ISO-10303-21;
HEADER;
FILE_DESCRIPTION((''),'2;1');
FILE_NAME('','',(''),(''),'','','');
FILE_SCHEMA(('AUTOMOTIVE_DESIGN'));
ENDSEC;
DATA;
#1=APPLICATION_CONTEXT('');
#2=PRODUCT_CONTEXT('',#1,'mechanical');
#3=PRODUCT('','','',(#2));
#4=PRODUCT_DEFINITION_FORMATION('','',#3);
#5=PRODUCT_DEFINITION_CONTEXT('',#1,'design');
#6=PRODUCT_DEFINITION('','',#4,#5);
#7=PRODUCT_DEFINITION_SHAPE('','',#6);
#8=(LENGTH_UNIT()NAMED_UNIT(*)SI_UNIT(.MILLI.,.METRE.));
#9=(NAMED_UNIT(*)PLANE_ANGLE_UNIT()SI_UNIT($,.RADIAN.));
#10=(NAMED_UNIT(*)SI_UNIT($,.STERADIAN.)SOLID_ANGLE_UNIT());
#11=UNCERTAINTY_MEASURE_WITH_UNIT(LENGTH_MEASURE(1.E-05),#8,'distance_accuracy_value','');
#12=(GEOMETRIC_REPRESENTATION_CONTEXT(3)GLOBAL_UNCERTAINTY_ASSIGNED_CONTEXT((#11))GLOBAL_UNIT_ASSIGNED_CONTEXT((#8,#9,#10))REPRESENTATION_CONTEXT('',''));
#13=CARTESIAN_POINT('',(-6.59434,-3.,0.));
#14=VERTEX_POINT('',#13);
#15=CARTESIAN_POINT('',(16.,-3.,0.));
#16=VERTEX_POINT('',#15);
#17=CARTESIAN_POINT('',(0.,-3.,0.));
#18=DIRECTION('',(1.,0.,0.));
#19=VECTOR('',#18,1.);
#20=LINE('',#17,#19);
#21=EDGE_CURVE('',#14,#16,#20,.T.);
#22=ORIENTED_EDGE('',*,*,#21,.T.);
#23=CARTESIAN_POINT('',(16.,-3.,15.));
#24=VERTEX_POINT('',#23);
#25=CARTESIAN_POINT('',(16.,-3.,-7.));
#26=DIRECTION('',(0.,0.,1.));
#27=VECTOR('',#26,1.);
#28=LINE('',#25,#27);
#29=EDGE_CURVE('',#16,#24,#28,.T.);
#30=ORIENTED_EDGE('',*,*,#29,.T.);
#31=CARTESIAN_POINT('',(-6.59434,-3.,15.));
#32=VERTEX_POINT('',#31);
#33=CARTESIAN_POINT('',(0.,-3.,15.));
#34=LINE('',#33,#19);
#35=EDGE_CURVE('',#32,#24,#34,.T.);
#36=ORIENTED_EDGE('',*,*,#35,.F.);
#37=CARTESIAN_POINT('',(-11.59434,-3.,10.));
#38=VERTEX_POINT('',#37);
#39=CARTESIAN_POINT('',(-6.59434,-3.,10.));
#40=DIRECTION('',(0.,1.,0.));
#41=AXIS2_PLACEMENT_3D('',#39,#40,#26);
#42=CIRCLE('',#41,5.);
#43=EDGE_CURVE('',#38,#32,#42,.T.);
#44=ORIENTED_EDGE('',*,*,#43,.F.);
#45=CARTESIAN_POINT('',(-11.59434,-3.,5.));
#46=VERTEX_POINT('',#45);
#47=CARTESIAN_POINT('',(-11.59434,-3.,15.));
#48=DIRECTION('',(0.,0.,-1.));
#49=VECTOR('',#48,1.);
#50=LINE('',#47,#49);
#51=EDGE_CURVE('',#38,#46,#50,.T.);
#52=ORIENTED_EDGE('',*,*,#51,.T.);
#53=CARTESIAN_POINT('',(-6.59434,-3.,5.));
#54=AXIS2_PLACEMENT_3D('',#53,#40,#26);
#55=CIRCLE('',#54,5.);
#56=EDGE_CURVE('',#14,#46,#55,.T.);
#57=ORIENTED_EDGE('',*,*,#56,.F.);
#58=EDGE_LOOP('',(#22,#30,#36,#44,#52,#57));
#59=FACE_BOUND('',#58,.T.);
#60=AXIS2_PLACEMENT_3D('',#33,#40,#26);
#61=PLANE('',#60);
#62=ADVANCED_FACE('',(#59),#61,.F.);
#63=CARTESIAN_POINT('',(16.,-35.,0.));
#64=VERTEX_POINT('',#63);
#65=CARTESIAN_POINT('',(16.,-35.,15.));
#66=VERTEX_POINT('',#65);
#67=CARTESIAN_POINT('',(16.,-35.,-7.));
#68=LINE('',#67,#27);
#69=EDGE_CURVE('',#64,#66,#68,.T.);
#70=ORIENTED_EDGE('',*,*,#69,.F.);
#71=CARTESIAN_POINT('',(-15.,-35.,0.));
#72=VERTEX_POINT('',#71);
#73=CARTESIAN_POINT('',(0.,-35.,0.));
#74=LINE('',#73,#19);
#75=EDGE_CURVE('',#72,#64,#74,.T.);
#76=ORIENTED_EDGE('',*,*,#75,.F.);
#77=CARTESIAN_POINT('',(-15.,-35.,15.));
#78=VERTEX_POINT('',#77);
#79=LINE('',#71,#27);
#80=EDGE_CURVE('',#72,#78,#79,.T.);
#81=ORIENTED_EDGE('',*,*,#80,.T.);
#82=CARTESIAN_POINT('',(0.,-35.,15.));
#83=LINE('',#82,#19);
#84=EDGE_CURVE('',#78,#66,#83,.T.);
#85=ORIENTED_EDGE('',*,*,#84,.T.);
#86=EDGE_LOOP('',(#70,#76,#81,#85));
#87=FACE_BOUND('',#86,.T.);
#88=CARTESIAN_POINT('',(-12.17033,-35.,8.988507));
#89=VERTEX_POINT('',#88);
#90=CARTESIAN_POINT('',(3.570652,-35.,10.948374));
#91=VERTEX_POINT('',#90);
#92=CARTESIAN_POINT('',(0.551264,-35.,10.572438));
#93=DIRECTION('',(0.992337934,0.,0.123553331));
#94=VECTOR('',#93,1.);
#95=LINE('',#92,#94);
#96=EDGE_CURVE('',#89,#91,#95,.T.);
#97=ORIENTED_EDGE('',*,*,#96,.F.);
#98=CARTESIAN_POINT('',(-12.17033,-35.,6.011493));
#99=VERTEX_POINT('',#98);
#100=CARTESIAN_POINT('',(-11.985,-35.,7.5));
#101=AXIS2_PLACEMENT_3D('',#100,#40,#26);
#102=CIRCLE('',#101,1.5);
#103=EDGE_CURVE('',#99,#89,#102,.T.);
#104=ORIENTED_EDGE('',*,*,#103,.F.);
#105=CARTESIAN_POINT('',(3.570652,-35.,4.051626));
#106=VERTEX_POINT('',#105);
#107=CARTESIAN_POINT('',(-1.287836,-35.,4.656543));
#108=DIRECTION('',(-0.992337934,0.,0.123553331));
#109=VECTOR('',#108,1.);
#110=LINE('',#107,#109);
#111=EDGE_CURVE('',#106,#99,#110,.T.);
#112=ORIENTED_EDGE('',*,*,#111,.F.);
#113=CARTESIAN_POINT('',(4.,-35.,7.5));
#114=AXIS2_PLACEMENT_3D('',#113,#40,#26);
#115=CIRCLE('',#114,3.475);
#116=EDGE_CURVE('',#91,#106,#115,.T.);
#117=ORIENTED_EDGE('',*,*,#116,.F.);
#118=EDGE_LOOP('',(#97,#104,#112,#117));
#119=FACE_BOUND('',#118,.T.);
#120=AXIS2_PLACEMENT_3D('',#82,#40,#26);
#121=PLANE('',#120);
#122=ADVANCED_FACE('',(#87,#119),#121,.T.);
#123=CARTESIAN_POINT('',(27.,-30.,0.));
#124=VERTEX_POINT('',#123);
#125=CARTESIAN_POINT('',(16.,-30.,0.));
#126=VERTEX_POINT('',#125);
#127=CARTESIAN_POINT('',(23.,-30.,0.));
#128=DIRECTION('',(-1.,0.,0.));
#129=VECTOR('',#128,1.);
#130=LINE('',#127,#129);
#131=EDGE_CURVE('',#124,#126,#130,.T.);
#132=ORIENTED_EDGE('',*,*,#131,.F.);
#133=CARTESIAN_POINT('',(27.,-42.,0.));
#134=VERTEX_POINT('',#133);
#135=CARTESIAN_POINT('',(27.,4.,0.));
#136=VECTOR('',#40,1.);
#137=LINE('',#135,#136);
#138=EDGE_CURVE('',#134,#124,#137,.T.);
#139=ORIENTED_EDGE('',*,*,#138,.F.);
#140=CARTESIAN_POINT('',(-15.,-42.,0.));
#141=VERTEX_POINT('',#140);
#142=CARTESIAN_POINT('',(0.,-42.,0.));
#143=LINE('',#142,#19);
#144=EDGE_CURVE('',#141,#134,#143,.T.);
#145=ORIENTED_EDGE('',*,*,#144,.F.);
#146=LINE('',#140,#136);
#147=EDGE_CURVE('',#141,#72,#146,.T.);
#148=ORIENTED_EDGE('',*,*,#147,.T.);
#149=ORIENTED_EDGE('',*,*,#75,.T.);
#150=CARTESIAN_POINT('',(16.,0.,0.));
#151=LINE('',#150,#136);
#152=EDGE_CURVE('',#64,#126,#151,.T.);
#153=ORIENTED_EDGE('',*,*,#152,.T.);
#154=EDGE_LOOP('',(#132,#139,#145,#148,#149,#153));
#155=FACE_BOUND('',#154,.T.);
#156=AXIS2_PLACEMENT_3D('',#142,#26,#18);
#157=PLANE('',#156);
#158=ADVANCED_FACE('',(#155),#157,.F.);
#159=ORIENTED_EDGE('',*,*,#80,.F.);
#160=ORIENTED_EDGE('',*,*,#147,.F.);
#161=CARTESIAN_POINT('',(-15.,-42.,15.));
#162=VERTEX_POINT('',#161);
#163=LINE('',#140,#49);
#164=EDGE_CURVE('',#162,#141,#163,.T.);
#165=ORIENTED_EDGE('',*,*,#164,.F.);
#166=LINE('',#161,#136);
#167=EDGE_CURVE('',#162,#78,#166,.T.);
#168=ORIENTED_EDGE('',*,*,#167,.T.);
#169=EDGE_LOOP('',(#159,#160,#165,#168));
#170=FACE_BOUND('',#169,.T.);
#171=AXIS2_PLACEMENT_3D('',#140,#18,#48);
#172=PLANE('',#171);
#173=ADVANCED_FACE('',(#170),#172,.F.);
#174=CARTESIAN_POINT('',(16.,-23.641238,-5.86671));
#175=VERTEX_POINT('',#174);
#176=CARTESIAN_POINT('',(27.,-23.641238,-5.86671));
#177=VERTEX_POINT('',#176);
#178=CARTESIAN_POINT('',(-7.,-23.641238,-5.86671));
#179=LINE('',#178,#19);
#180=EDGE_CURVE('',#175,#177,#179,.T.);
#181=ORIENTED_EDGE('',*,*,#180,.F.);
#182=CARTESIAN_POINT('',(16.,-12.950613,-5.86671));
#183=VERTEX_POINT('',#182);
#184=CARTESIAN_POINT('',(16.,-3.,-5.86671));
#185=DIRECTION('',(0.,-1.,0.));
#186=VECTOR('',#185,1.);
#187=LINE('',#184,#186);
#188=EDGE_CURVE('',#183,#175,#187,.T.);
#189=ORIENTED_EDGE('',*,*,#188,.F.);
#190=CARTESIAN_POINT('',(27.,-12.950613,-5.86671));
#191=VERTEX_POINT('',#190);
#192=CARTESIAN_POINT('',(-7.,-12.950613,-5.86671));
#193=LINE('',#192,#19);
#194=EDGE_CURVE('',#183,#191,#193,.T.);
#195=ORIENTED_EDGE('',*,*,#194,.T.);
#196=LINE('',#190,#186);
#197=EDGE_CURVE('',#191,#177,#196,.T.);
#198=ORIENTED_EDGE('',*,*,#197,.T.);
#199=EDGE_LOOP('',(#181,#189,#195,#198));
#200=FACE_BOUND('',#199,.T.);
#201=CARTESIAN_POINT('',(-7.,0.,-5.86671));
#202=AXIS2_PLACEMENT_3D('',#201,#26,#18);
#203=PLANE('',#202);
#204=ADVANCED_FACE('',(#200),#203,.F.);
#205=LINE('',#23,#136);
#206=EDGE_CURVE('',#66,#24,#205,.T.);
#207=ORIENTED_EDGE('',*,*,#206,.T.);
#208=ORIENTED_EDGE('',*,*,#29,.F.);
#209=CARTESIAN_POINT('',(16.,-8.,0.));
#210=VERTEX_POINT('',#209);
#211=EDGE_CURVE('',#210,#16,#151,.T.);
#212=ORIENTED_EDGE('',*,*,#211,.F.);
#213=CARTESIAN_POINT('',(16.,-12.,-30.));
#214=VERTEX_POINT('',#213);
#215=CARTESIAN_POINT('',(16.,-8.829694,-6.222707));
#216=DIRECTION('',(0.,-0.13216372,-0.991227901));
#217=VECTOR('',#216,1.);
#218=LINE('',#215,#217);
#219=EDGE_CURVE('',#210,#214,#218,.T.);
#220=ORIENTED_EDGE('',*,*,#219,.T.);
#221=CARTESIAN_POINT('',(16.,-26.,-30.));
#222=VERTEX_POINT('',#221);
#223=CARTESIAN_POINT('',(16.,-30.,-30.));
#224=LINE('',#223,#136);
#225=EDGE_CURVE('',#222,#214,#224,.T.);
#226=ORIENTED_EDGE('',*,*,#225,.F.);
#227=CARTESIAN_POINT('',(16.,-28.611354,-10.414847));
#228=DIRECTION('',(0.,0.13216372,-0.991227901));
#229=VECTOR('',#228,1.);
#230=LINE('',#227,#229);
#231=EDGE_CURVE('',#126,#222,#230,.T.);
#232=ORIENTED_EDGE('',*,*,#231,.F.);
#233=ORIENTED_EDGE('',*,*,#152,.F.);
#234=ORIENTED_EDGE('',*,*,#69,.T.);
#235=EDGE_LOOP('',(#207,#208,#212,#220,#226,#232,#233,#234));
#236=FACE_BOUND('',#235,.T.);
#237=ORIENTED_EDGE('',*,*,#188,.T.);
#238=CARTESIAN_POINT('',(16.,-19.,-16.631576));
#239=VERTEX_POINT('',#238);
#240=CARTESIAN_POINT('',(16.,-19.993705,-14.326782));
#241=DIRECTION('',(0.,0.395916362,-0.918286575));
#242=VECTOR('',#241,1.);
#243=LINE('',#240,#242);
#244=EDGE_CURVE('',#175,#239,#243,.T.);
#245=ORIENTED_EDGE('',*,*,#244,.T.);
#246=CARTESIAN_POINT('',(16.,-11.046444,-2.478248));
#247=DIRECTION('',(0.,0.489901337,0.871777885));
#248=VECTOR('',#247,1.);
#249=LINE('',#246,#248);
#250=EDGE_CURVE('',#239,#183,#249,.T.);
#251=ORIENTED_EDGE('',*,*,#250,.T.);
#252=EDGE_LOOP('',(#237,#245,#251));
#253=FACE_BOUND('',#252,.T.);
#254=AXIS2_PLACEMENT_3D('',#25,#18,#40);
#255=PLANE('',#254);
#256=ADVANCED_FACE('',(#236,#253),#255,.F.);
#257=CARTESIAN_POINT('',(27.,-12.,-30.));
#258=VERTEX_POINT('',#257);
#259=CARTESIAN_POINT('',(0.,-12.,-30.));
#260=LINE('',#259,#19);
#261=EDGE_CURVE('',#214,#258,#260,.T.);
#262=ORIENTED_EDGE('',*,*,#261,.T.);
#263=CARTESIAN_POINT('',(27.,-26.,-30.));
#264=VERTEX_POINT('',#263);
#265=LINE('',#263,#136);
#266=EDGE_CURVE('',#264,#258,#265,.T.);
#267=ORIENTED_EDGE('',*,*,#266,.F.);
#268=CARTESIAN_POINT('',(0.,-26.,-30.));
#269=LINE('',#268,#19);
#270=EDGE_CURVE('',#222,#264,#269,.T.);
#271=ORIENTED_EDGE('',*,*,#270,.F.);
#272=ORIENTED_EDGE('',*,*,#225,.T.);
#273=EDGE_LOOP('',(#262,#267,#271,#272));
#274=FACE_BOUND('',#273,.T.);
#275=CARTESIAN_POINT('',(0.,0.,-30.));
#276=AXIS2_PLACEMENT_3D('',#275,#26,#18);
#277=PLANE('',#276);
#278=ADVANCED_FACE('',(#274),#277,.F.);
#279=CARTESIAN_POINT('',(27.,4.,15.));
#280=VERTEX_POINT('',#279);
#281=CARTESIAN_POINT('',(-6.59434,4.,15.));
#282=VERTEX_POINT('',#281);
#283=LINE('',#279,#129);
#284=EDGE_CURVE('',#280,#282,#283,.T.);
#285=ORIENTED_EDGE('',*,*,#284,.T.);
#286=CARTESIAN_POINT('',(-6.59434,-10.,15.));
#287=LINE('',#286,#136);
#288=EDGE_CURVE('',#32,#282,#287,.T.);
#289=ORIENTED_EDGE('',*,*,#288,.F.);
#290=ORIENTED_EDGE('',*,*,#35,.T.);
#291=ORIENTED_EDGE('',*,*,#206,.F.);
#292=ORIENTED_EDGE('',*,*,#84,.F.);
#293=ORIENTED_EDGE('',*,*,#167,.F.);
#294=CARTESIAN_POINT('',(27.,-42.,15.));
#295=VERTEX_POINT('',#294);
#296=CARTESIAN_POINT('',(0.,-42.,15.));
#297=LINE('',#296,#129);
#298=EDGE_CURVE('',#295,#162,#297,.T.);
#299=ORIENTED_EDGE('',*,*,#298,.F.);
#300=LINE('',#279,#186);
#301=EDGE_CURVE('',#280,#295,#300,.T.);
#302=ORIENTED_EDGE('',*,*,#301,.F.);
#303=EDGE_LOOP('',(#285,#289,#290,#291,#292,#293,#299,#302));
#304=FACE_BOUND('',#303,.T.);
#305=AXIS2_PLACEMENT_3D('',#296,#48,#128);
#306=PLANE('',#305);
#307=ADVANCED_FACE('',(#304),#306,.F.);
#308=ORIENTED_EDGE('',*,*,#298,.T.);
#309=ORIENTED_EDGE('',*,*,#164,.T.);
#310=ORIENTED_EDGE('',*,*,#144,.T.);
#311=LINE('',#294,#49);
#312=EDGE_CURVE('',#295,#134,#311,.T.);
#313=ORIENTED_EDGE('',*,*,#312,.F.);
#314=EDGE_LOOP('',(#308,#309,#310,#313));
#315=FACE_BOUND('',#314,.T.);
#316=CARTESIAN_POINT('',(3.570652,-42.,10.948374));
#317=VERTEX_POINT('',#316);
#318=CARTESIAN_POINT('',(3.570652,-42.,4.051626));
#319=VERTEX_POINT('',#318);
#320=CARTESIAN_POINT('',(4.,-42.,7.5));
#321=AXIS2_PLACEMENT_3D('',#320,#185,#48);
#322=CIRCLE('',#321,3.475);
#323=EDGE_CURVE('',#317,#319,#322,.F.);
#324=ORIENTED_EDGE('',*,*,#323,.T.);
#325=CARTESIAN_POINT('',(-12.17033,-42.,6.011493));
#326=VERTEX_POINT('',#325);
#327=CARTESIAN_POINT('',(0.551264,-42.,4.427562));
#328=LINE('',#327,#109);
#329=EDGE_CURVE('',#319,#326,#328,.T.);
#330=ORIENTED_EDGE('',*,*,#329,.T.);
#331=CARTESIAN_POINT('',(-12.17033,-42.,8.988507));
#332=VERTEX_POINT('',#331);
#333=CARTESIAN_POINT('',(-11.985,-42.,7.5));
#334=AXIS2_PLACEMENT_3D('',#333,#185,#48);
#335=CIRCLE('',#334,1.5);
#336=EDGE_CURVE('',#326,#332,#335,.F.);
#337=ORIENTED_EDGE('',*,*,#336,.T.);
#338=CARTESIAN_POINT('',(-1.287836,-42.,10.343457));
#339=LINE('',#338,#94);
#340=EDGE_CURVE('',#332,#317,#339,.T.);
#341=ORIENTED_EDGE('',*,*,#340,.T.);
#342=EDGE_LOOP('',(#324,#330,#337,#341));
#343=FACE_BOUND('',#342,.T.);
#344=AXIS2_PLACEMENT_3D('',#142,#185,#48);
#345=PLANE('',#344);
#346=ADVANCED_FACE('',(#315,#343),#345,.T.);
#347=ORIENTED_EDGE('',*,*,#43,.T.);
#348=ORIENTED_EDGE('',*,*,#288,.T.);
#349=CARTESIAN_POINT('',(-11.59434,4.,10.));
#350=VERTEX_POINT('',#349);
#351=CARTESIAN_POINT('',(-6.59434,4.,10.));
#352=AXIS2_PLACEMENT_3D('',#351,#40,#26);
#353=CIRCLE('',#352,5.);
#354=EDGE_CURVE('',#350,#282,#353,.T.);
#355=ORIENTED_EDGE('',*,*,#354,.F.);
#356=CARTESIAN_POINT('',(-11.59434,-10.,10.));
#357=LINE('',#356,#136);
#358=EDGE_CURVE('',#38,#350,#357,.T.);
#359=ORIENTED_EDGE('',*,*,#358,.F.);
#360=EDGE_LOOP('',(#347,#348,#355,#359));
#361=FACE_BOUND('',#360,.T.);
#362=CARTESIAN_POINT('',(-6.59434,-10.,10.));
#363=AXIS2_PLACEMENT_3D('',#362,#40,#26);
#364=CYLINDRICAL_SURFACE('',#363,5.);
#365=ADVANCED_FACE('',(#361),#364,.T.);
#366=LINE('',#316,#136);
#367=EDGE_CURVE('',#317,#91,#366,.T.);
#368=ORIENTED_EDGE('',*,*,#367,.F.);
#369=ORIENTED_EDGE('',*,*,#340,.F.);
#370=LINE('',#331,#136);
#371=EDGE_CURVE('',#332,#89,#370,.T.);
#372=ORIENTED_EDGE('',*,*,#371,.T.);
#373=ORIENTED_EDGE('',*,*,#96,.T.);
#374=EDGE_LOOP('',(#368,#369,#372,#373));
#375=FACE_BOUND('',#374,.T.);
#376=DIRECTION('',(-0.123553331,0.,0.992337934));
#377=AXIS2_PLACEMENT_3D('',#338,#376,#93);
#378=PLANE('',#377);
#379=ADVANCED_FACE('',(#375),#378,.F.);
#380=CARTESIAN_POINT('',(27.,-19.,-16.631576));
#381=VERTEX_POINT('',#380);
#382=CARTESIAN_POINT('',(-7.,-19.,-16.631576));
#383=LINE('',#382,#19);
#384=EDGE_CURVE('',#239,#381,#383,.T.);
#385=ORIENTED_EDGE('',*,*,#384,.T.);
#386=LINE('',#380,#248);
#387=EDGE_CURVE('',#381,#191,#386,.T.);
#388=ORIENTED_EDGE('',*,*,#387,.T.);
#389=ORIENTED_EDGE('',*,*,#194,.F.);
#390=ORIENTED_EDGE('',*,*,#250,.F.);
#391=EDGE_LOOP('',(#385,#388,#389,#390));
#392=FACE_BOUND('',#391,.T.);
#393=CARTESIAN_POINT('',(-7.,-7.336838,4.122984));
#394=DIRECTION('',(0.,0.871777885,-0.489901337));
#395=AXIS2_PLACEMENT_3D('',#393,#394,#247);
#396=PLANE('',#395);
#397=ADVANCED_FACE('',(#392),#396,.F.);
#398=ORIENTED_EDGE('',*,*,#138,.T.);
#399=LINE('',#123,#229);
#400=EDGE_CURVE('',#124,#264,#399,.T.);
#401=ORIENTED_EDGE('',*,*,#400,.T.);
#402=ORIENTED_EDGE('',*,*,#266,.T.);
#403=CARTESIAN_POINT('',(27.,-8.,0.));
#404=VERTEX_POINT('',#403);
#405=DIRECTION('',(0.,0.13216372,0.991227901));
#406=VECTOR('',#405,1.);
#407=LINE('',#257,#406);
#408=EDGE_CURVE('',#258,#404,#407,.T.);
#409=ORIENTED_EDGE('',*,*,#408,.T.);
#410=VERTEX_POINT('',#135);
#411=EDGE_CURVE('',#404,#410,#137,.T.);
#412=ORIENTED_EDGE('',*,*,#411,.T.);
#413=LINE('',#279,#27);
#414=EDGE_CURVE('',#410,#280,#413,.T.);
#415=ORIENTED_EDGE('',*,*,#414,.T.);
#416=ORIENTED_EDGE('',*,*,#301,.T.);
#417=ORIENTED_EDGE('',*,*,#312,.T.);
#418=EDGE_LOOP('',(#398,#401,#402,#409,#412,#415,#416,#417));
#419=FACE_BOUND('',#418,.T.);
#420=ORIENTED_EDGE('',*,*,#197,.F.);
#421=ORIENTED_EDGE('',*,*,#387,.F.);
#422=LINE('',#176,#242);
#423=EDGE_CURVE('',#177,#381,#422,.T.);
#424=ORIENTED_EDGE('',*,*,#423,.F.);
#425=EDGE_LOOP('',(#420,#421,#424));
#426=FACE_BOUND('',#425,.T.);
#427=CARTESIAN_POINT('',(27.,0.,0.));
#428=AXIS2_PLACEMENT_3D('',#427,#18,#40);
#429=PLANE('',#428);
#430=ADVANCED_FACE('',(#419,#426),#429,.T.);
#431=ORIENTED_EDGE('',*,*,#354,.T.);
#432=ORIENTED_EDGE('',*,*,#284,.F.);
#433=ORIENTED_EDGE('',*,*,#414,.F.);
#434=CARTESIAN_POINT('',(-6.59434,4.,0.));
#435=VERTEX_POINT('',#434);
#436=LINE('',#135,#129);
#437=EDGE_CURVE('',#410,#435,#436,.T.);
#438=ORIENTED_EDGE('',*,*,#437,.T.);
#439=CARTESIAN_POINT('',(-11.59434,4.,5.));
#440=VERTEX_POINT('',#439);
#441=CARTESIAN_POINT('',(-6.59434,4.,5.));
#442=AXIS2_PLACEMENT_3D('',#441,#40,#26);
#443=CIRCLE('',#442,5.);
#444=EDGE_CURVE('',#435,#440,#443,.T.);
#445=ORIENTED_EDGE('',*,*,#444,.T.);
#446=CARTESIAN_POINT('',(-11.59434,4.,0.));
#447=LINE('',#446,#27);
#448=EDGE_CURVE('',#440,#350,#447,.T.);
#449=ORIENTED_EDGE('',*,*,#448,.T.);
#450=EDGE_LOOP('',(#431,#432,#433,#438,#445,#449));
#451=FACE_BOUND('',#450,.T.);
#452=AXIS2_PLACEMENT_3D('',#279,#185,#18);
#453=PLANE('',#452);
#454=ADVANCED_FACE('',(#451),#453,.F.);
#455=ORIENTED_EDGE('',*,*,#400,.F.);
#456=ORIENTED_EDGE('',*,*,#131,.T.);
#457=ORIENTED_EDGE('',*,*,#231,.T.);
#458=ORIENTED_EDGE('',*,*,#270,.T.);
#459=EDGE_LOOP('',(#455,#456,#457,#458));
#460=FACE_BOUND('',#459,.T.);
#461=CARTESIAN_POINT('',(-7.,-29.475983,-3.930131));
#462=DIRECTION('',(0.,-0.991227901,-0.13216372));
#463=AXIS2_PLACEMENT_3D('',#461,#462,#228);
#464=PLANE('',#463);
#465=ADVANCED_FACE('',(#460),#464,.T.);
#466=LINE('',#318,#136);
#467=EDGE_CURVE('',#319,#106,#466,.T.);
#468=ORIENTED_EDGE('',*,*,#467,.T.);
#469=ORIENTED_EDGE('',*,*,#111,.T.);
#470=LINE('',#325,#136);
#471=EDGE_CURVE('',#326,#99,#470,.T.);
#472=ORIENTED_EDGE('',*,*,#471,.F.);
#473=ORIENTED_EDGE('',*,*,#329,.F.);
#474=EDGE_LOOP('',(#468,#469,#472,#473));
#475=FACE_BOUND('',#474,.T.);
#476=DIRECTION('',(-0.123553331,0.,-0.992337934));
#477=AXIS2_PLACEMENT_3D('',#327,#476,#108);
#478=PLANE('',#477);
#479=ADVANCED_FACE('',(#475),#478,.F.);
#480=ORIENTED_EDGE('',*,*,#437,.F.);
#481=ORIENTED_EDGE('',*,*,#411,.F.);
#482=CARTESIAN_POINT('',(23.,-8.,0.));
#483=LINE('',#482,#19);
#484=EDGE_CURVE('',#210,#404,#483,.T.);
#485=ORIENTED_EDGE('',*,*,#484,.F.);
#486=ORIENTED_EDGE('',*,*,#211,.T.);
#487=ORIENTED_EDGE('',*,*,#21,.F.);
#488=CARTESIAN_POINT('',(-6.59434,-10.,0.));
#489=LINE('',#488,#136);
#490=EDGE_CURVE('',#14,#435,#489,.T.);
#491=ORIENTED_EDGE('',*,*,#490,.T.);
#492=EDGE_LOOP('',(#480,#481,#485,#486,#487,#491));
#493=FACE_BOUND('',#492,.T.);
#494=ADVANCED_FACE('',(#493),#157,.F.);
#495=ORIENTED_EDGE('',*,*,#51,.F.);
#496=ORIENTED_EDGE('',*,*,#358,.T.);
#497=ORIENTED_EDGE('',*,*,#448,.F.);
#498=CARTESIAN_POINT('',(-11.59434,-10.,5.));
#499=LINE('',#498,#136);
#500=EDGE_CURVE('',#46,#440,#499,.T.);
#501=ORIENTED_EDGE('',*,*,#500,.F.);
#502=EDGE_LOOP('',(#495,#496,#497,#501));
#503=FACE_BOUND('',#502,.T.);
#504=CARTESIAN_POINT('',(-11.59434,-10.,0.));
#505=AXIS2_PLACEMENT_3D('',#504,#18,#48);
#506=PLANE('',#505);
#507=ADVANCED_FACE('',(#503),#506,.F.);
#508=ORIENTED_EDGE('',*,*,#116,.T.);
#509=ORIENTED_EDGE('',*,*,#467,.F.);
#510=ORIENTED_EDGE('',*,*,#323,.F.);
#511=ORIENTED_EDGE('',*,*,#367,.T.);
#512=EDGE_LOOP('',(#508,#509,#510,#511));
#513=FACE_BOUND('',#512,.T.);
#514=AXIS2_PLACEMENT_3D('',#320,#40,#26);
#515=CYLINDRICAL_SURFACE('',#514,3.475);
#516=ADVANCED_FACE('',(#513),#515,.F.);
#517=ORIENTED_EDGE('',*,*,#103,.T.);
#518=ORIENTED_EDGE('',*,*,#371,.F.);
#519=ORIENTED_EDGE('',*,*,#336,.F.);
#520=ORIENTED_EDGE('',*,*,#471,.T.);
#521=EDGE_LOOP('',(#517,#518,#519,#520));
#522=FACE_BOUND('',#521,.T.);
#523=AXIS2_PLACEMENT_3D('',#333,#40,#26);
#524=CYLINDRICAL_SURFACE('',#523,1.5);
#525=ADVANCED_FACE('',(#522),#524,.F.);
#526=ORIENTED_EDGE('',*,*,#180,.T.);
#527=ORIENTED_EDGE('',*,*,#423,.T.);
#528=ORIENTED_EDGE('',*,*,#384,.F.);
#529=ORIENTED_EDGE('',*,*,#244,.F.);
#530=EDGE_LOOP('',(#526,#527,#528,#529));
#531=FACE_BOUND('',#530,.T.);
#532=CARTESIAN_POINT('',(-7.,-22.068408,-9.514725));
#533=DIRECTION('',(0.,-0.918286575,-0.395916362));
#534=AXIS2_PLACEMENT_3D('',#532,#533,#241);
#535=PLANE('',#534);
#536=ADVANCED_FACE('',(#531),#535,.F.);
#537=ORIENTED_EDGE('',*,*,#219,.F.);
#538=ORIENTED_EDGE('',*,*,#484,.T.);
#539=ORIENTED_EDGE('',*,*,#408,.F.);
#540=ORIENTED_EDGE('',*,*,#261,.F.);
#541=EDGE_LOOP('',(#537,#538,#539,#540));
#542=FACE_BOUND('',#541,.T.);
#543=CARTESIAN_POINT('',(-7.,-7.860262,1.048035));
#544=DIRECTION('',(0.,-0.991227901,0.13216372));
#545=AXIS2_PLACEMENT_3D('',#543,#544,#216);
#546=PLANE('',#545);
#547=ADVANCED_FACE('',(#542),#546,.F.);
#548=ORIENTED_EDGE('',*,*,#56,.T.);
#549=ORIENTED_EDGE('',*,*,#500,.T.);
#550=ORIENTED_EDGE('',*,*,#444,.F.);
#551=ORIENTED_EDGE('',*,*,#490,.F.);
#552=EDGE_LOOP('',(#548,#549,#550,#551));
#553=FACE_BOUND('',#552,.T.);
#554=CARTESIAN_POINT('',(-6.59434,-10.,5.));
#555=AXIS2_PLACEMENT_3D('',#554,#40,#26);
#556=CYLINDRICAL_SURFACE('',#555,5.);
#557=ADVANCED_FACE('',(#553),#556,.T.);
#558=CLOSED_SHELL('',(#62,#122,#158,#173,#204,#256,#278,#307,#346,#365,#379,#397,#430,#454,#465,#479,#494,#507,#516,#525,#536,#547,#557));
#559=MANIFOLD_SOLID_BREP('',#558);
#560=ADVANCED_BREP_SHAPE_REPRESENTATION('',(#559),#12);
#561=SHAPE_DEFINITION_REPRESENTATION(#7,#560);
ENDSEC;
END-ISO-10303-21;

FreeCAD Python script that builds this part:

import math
import FreeCAD as App
import Part
import Sketcher
from FreeCAD import Vector
Q = App.Units.Quantity


def add_polygon(sketch, points):
    """Adds a closed chain of lines whose ends are joined by coincident constraints."""
    first, n = sketch.GeometryCount, len(points)
    for a, b in zip(points, points[1:] + points[:1]):
        sketch.addGeometry(Part.LineSegment(App.Vector(*a, 0), App.Vector(*b, 0)), False)
    for i in range(n):
        sketch.addConstraint(Sketcher.Constraint("Coincident", first + i, 2, first + (i + 1) % n, 1))

doc = App.newDocument("Part")
params = doc.addObject("Spreadsheet::Sheet", "Params")
for row, (alias, value) in enumerate([
    ("sketch1_width", "13 mm"),
    ("sketch1_width2", "8 mm"),
    ("sketch1_height", "3 mm"),
    ("sketch1_height2", "32 mm"),
    ("pad1_length", "15 mm"),
    ("sketch2_width", "3 mm"),
    ("sketch2_height", "15 mm"),
    ("pad2_length", "15 mm"),
    ("sketch3_radius", "1.5 mm"),
    ("pocket1_length", "15 mm"),
    ("sketch4_width", "38 mm"),
    ("sketch4_height", "15 mm"),
    ("pad3_length", "10 mm"),
    ("sketch5_width", "8 mm"),
    ("sketch5_height", "32 mm"),
    ("pocket2_length", "22 mm"),
    ("sketch6_width", "7 mm"),
    ("sketch6_height", "22 mm"),
    ("pad4_length", "30 mm"),
    ("sketch7_width", "4 mm"),
    ("sketch7_height", "30 mm"),
    ("pocket3_length", "30 mm"),
    ("pocket4_length", "30 mm"),
    ("sketch9_height", "15 mm"),
    ("pocket5_length", "10 mm"),
    ("sketch10_radius", "5 mm"),
    ("pocket6_length", "10 mm"),
    ("sketch11_radius", "5 mm"),
    ("sketch11_height", "15 mm"),
    ("pad5_length", "4 mm"),
    ("sketch12_radius", "1.5 mm"),
    ("sketch12_width", "38 mm"),
    ("sketch12_height", "15 mm"),
    ("pad6_length", "4 mm"),
    ("sketch13_width", "46 mm"),
    ("sketch13_height", "15 mm"),
    ("pad7_length", "4 mm"),
    ("sketch14_width", "22 mm"),
    ("sketch14_width2", "14 mm"),
    ("pad8_length", "4 mm"),
], start=1):
    params.set(f"A{row}", alias)
    params.set(f"B{row}", "=" + value)
    params.setAlias(f"B{row}", alias)

body = doc.addObject("PartDesign::Body", "Body")

sketch1 = body.newObject("Sketcher::SketchObject", "Sketch")
sketch1.AttachmentSupport = (doc.getObject("XY_Plane"), [""])
sketch1.MapMode = "FlatFace"
add_polygon(sketch1, [(13, 0), (0, 0), (0, -3), (8, -3), (8, -35), (0, -35), (0, -38), (13, -38)])
sketch1.addConstraint(Sketcher.Constraint("Horizontal", 0))
sketch1.addConstraint(Sketcher.Constraint("Vertical", 1))
sketch1.addConstraint(Sketcher.Constraint("Horizontal", 2))
sketch1.addConstraint(Sketcher.Constraint("Vertical", 3))
sketch1.addConstraint(Sketcher.Constraint("Horizontal", 4))
sketch1.addConstraint(Sketcher.Constraint("Vertical", 5))
sketch1.addConstraint(Sketcher.Constraint("Horizontal", 6))
sketch1.addConstraint(Sketcher.Constraint("Vertical", 7))
sketch1.addConstraint(Sketcher.Constraint("Coincident", 0, 2, -1, 1))
sketch1.addConstraint(Sketcher.Constraint("PointOnObject", 4, 2, -2))
sketch1.addConstraint(Sketcher.Constraint("Equal", 1, 5))
sketch1.addConstraint(Sketcher.Constraint("DistanceX", 0, 2, 0, 1, Q("13 mm")))
sketch1.addConstraint(Sketcher.Constraint("DistanceX", 2, 1, 2, 2, Q("8 mm")))
sketch1.addConstraint(Sketcher.Constraint("DistanceY", 1, 2, 1, 1, Q("3 mm")))
sketch1.addConstraint(Sketcher.Constraint("DistanceY", 3, 2, 3, 1, Q("32 mm")))
sketch1.setExpression("Constraints[19]", "Params.sketch1_width")
sketch1.setExpression("Constraints[20]", "Params.sketch1_width2")
sketch1.setExpression("Constraints[21]", "Params.sketch1_height")
sketch1.setExpression("Constraints[22]", "Params.sketch1_height2")
pad1 = body.newObject("PartDesign::Pad", "Pad")
pad1.Profile = sketch1
pad1.setExpression("Length", "Params.pad1_length")

sketch2 = body.newObject("Sketcher::SketchObject", "Sketch001")
sketch2.AttachmentSupport = (doc.getObject("YZ_Plane"), [""])
sketch2.MapMode = "FlatFace"
add_polygon(sketch2, [(0, 0), (-3, 0), (-3, 15), (0, 15)])
add_polygon(sketch2, [(-35, 0), (-38, 0), (-38, 15), (-35, 15)])
sketch2.addConstraint(Sketcher.Constraint("Horizontal", 0))
sketch2.addConstraint(Sketcher.Constraint("Vertical", 1))
sketch2.addConstraint(Sketcher.Constraint("Horizontal", 2))
sketch2.addConstraint(Sketcher.Constraint("Vertical", 3))
sketch2.addConstraint(Sketcher.Constraint("Horizontal", 4))
sketch2.addConstraint(Sketcher.Constraint("Vertical", 5))
sketch2.addConstraint(Sketcher.Constraint("Horizontal", 6))
sketch2.addConstraint(Sketcher.Constraint("Vertical", 7))
sketch2.addConstraint(Sketcher.Constraint("Coincident", 3, 2, -1, 1))
sketch2.addConstraint(Sketcher.Constraint("PointOnObject", 4, 2, -1))
sketch2.addConstraint(Sketcher.Constraint("Horizontal", 2, 2, 5, 2))
sketch2.addConstraint(Sketcher.Constraint("Equal", 2, 4))
sketch2.addConstraint(Sketcher.Constraint("DistanceX", 0, 2, 0, 1, Q("3 mm")))
sketch2.addConstraint(Sketcher.Constraint("DistanceY", 1, 1, 1, 2, Q("15 mm")))
sketch2.addConstraint(Sketcher.Constraint("DistanceX", 4, 2, -1, 1, Q("38 mm")))
sketch2.setExpression("Constraints[20]", "Params.sketch2_width")
sketch2.setExpression("Constraints[21]", "Params.sketch2_height")
pad2 = body.newObject("PartDesign::Pad", "Pad001")
pad2.Profile = sketch2
pad2.setExpression("Length", "Params.pad2_length")
pad2.Reversed = True

sketch3 = body.newObject("Sketcher::SketchObject", "Sketch002")
sketch3.AttachmentSupport = (doc.getObject("XZ_Plane"), [""])
sketch3.MapMode = "FlatFace"
sketch3.AttachmentOffset = App.Placement(Vector(0, 0, 38), App.Rotation())
sketch3.addGeometry(Part.LineSegment(Vector(3.6, 10.9, 0), Vector(-12.2, 9, 0)), False)
sketch3.addGeometry(Part.ArcOfCircle(Part.Circle(Vector(-12, 7.5, 0), Vector(0, 0, 1), 1.5), math.radians(97), math.radians(263)), False)
sketch3.addGeometry(Part.LineSegment(Vector(-12.2, 6, 0), Vector(3.6, 4.1, 0)), False)
sketch3.addGeometry(Part.ArcOfCircle(Part.Circle(Vector(4, 7.5, 0), Vector(0, 0, 1), 3.5), math.radians(-97), math.radians(97)), False)
sketch3.addConstraint(Sketcher.Constraint("Tangent", 0, 2, 1, 1))
sketch3.addConstraint(Sketcher.Constraint("Tangent", 1, 2, 2, 1))
sketch3.addConstraint(Sketcher.Constraint("Tangent", 2, 2, 3, 1))
sketch3.addConstraint(Sketcher.Constraint("Tangent", 3, 2, 0, 1))
sketch3.addConstraint(Sketcher.Constraint("Horizontal", 1, 3, 3, 3))
sketch3.addConstraint(Sketcher.Constraint("Radius", 1, Q("1.5 mm")))
sketch3.addConstraint(Sketcher.Constraint("DistanceX", -1, 1, 3, 3, Q("4 mm")))
sketch3.addConstraint(Sketcher.Constraint("Radius", 3, Q("3.475 mm")))
sketch3.addConstraint(Sketcher.Constraint("DistanceY", -1, 1, 1, 3, Q("7.5 mm")))
sketch3.addConstraint(Sketcher.Constraint("DistanceX", 1, 3, -1, 1, Q("11.985 mm")))
sketch3.setExpression("Constraints[5]", "Params.sketch3_radius")
pocket1 = body.newObject("PartDesign::Pocket", "Pocket")
pocket1.Profile = sketch3
pocket1.setExpression("Length", "Params.pocket1_length")

sketch4 = body.newObject("Sketcher::SketchObject", "Sketch003")
sketch4.AttachmentSupport = (doc.getObject("YZ_Plane"), [""])
sketch4.MapMode = "FlatFace"
sketch4.AttachmentOffset = App.Placement(Vector(0, 0, 13), App.Rotation())
add_polygon(sketch4, [(0, 15), (-38, 15), (-38, 0), (0, 0)])
sketch4.addConstraint(Sketcher.Constraint("Horizontal", 0))
sketch4.addConstraint(Sketcher.Constraint("Vertical", 1))
sketch4.addConstraint(Sketcher.Constraint("Horizontal", 2))
sketch4.addConstraint(Sketcher.Constraint("Vertical", 3))
sketch4.addConstraint(Sketcher.Constraint("Coincident", 2, 2, -1, 1))
sketch4.addConstraint(Sketcher.Constraint("DistanceX", 0, 2, 0, 1, Q("38 mm")))
sketch4.addConstraint(Sketcher.Constraint("DistanceY", 1, 2, 1, 1, Q("15 mm")))
sketch4.setExpression("Constraints[9]", "Params.sketch4_width")
sketch4.setExpression("Constraints[10]", "Params.sketch4_height")
pad3 = body.newObject("PartDesign::Pad", "Pad002")
pad3.Profile = sketch4
pad3.setExpression("Length", "Params.pad3_length")

sketch5 = body.newObject("Sketcher::SketchObject", "Sketch004")
sketch5.AttachmentSupport = (doc.getObject("XY_Plane"), [""])
sketch5.MapMode = "FlatFace"
sketch5.AttachmentOffset = App.Placement(Vector(0, 0, 15), App.Rotation())
add_polygon(sketch5, [(8, -3), (8, -35), (16, -35), (16, -3)])
sketch5.addConstraint(Sketcher.Constraint("Vertical", 0))
sketch5.addConstraint(Sketcher.Constraint("Horizontal", 1))
sketch5.addConstraint(Sketcher.Constraint("Vertical", 2))
sketch5.addConstraint(Sketcher.Constraint("Horizontal", 3))
sketch5.addConstraint(Sketcher.Constraint("DistanceX", 1, 1, 1, 2, Q("8 mm")))
sketch5.addConstraint(Sketcher.Constraint("DistanceY", 0, 2, 0, 1, Q("32 mm")))
sketch5.addConstraint(Sketcher.Constraint("DistanceX", -1, 1, 0, 2, Q("8 mm")))
sketch5.addConstraint(Sketcher.Constraint("DistanceY", 0, 2, -1, 1, Q("35 mm")))
sketch5.setExpression("Constraints[8]", "Params.sketch5_width")
sketch5.setExpression("Constraints[9]", "Params.sketch5_height")
pocket2 = body.newObject("PartDesign::Pocket", "Pocket001")
pocket2.Profile = sketch5
pocket2.setExpression("Length", "Params.pocket2_length")

sketch6 = body.newObject("Sketcher::SketchObject", "Sketch005")
sketch6.AttachmentSupport = (doc.getObject("XY_Plane"), [""])
sketch6.MapMode = "FlatFace"
add_polygon(sketch6, [(23, -8), (23, -30), (16, -30), (16, -8)])
sketch6.addConstraint(Sketcher.Constraint("Vertical", 0))
sketch6.addConstraint(Sketcher.Constraint("Horizontal", 1))
sketch6.addConstraint(Sketcher.Constraint("Vertical", 2))
sketch6.addConstraint(Sketcher.Constraint("Horizontal", 3))
sketch6.addConstraint(Sketcher.Constraint("DistanceX", 1, 2, 1, 1, Q("7 mm")))
sketch6.addConstraint(Sketcher.Constraint("DistanceY", 0, 2, 0, 1, Q("22 mm")))
sketch6.addConstraint(Sketcher.Constraint("DistanceX", -1, 1, 0, 2, Q("23 mm")))
sketch6.addConstraint(Sketcher.Constraint("DistanceY", 0, 2, -1, 1, Q("30 mm")))
sketch6.setExpression("Constraints[8]", "Params.sketch6_width")
sketch6.setExpression("Constraints[9]", "Params.sketch6_height")
pad4 = body.newObject("PartDesign::Pad", "Pad003")
pad4.Profile = sketch6
pad4.setExpression("Length", "Params.pad4_length")
pad4.Reversed = True

sketch7 = body.newObject("Sketcher::SketchObject", "Sketch006")
sketch7.AttachmentSupport = (doc.getObject("YZ_Plane"), [""])
sketch7.MapMode = "FlatFace"
sketch7.AttachmentOffset = App.Placement(Vector(0, 0, 23), App.Rotation())
add_polygon(sketch7, [(-8, 0), (-12, -30), (-8, -30)])
add_polygon(sketch7, [(-30, 0), (-30, -30), (-26, -30)])
sketch7.addConstraint(Sketcher.Constraint("Horizontal", 1))
sketch7.addConstraint(Sketcher.Constraint("Vertical", 2))
sketch7.addConstraint(Sketcher.Constraint("Vertical", 3))
sketch7.addConstraint(Sketcher.Constraint("Horizontal", 4))
sketch7.addConstraint(Sketcher.Constraint("PointOnObject", 2, 2, -1))
sketch7.addConstraint(Sketcher.Constraint("PointOnObject", 5, 2, -1))
sketch7.addConstraint(Sketcher.Constraint("Horizontal", 1, 2, 3, 2))
sketch7.addConstraint(Sketcher.Constraint("Equal", 1, 4))
sketch7.addConstraint(Sketcher.Constraint("DistanceX", 1, 1, 1, 2, Q("4 mm")))
sketch7.addConstraint(Sketcher.Constraint("DistanceY", 2, 1, 2, 2, Q("30 mm")))
sketch7.addConstraint(Sketcher.Constraint("DistanceX", 0, 2, -1, 1, Q("12 mm")))
sketch7.addConstraint(Sketcher.Constraint("DistanceX", 3, 2, -1, 1, Q("30 mm")))
sketch7.setExpression("Constraints[14]", "Params.sketch7_width")
sketch7.setExpression("Constraints[15]", "Params.sketch7_height")
pocket3 = body.newObject("PartDesign::Pocket", "Pocket002")
pocket3.Profile = sketch7
pocket3.setExpression("Length", "Params.pocket3_length")

sketch8 = body.newObject("Sketcher::SketchObject", "Sketch007")
sketch8.AttachmentSupport = (doc.getObject("YZ_Plane"), [""])
sketch8.MapMode = "FlatFace"
sketch8.AttachmentOffset = App.Placement(Vector(0, 0, 23), App.Rotation())
add_polygon(sketch8, [(-13, -6), (-24, -6), (-19, -17)])
sketch8.addConstraint(Sketcher.Constraint("Horizontal", 0))
sketch8.addConstraint(Sketcher.Constraint("DistanceX", 1, 2, -1, 1, Q("19 mm")))
sketch8.addConstraint(Sketcher.Constraint("DistanceX", 0, 2, 0, 1, Q("10.690625 mm")))
sketch8.addConstraint(Sketcher.Constraint("DistanceY", 0, 2, -1, 1, Q("5.86671 mm")))
sketch8.addConstraint(Sketcher.Constraint("Distance", 1, Q("11.722774 mm")))
sketch8.addConstraint(Sketcher.Constraint("Distance", 2, Q("12.348175 mm")))
pocket4 = body.newObject("PartDesign::Pocket", "Pocket003")
pocket4.Profile = sketch8
pocket4.setExpression("Length", "Params.pocket4_length")

sketch9 = body.newObject("Sketcher::SketchObject", "Sketch008")
sketch9.AttachmentSupport = (doc.getObject("XZ_Plane"), [""])
sketch9.MapMode = "FlatFace"
add_polygon(sketch9, [(-15, 0), (-15, 15), (-11.6, 15), (-11.6, 0)])
sketch9.addConstraint(Sketcher.Constraint("Vertical", 0))
sketch9.addConstraint(Sketcher.Constraint("Horizontal", 1))
sketch9.addConstraint(Sketcher.Constraint("Vertical", 2))
sketch9.addConstraint(Sketcher.Constraint("Horizontal", 3))
sketch9.addConstraint(Sketcher.Constraint("PointOnObject", 2, 2, -1))
sketch9.addConstraint(Sketcher.Constraint("DistanceY", 0, 1, 0, 2, Q("15 mm")))
sketch9.addConstraint(Sketcher.Constraint("DistanceX", 0, 2, -1, 1, Q("15 mm")))
sketch9.addConstraint(Sketcher.Constraint("DistanceX", 1, 1, 1, 2, Q("3.40566 mm")))
sketch9.setExpression("Constraints[9]", "Params.sketch9_height")
pocket5 = body.newObject("PartDesign::Pocket", "Pocket004")
pocket5.Profile = sketch9
pocket5.setExpression("Length", "Params.pocket5_length")
pocket5.Reversed = True

sketch10 = body.newObject("Sketcher::SketchObject", "Sketch009")
sketch10.AttachmentSupport = (doc.getObject("XZ_Plane"), [""])
sketch10.MapMode = "FlatFace"
sketch10.addGeometry(Part.ArcOfCircle(Part.Circle(Vector(-7, 10, 0), Vector(0, 0, 1), 5), math.radians(90), math.radians(180)), False)
sketch10.addGeometry(Part.LineSegment(Vector(-12, 10, 0), Vector(-12, 15, 0)), False)
sketch10.addGeometry(Part.LineSegment(Vector(-12, 15, 0), Vector(-7, 15, 0)), False)
sketch10.addGeometry(Part.LineSegment(Vector(-12, 0, 0), Vector(-12, 5, 0)), False)
sketch10.addGeometry(Part.ArcOfCircle(Part.Circle(Vector(-7, 5, 0), Vector(0, 0, 1), 5), math.radians(180), math.radians(270)), False)
sketch10.addGeometry(Part.LineSegment(Vector(-7, 0, 0), Vector(-12, 0, 0)), False)
sketch10.addConstraint(Sketcher.Constraint("Tangent", 0, 2, 1, 1))
sketch10.addConstraint(Sketcher.Constraint("Coincident", 1, 2, 2, 1))
sketch10.addConstraint(Sketcher.Constraint("Tangent", 2, 2, 0, 1))
sketch10.addConstraint(Sketcher.Constraint("Tangent", 3, 2, 4, 1))
sketch10.addConstraint(Sketcher.Constraint("Tangent", 4, 2, 5, 1))
sketch10.addConstraint(Sketcher.Constraint("Coincident", 5, 2, 3, 1))
sketch10.addConstraint(Sketcher.Constraint("Vertical", 1))
sketch10.addConstraint(Sketcher.Constraint("Horizontal", 2))
sketch10.addConstraint(Sketcher.Constraint("Vertical", 3))
sketch10.addConstraint(Sketcher.Constraint("Horizontal", 5))
sketch10.addConstraint(Sketcher.Constraint("Equal", 0, 4))
sketch10.addConstraint(Sketcher.Constraint("PointOnObject", 4, 2, -1))
sketch10.addConstraint(Sketcher.Constraint("Vertical", 0, 3, 4, 3))
sketch10.addConstraint(Sketcher.Constraint("Radius", 0, Q("5 mm")))
sketch10.addConstraint(Sketcher.Constraint("DistanceY", -1, 1, 0, 3, Q("10 mm")))
sketch10.addConstraint(Sketcher.Constraint("DistanceX", 0, 3, -1, 1, Q("6.59434 mm")))
sketch10.setExpression("Constraints[13]", "Params.sketch10_radius")
pocket6 = body.newObject("PartDesign::Pocket", "Pocket005")
pocket6.Profile = sketch10
pocket6.setExpression("Length", "Params.pocket6_length")
pocket6.Reversed = True

sketch11 = body.newObject("Sketcher::SketchObject", "Sketch010")
sketch11.AttachmentSupport = (doc.getObject("XZ_Plane"), [""])
sketch11.MapMode = "FlatFace"
sketch11.AttachmentOffset = App.Placement(Vector(0, 0, -4), App.Rotation())
sketch11.addGeometry(Part.ArcOfCircle(Part.Circle(Vector(-7, 10, 0), Vector(0, 0, 1), 5), math.radians(90), math.radians(180)), False)
sketch11.addGeometry(Part.LineSegment(Vector(-7, 15, 0), Vector(23, 15, 0)), False)
sketch11.addGeometry(Part.LineSegment(Vector(23, 15, 0), Vector(23, 0, 0)), False)
sketch11.addGeometry(Part.LineSegment(Vector(23, 0, 0), Vector(-7, 0, 0)), False)
sketch11.addGeometry(Part.ArcOfCircle(Part.Circle(Vector(-7, 5, 0), Vector(0, 0, 1), 5), math.radians(180), math.radians(270)), False)
sketch11.addGeometry(Part.LineSegment(Vector(-12, 5, 0), Vector(-12, 10, 0)), False)
sketch11.addConstraint(Sketcher.Constraint("Tangent", 0, 1, 1, 1))
sketch11.addConstraint(Sketcher.Constraint("Coincident", 1, 2, 2, 1))
sketch11.addConstraint(Sketcher.Constraint("Coincident", 2, 2, 3, 1))
sketch11.addConstraint(Sketcher.Constraint("Tangent", 3, 2, 4, 2))
sketch11.addConstraint(Sketcher.Constraint("Tangent", 4, 1, 5, 1))
sketch11.addConstraint(Sketcher.Constraint("Tangent", 5, 2, 0, 2))
sketch11.addConstraint(Sketcher.Constraint("Horizontal", 1))
sketch11.addConstraint(Sketcher.Constraint("Vertical", 2))
sketch11.addConstraint(Sketcher.Constraint("Horizontal", 3))
sketch11.addConstraint(Sketcher.Constraint("Vertical", 5))
sketch11.addConstraint(Sketcher.Constraint("Equal", 0, 4))
sketch11.addConstraint(Sketcher.Constraint("PointOnObject", 2, 2, -1))
sketch11.addConstraint(Sketcher.Constraint("Radius", 0, Q("5 mm")))
sketch11.addConstraint(Sketcher.Constraint("DistanceY", 2, 2, 2, 1, Q("15 mm")))
sketch11.addConstraint(Sketcher.Constraint("DistanceX", -1, 1, 1, 2, Q("23 mm")))
sketch11.addConstraint(Sketcher.Constraint("DistanceX", 1, 1, 1, 2, Q("29.59434 mm")))
sketch11.setExpression("Constraints[12]", "Params.sketch11_radius")
sketch11.setExpression("Constraints[13]", "Params.sketch11_height")
pad5 = body.newObject("PartDesign::Pad", "Pad004")
pad5.Profile = sketch11
pad5.setExpression("Length", "Params.pad5_length")
body2 = doc.addObject("PartDesign::Body", "Body001")

sketch12 = body2.newObject("Sketcher::SketchObject", "Sketch011")
sketch12.AttachmentSupport = (doc.getObject("XZ_Plane001"), [""])
sketch12.MapMode = "FlatFace"
sketch12.AttachmentOffset = App.Placement(Vector(0, 0, 38), App.Rotation())
add_polygon(sketch12, [(23, 0), (23, 15), (-15, 15), (-15, 0)])
sketch12.addGeometry(Part.LineSegment(Vector(-12.2, 9, 0), Vector(3.6, 10.9, 0)), False)
sketch12.addGeometry(Part.ArcOfCircle(Part.Circle(Vector(4, 7.5, 0), Vector(0, 0, 1), 3.5), math.radians(-97), math.radians(97)), False)
sketch12.addGeometry(Part.LineSegment(Vector(3.6, 4.1, 0), Vector(-12.2, 6, 0)), False)
sketch12.addGeometry(Part.ArcOfCircle(Part.Circle(Vector(-12, 7.5, 0), Vector(0, 0, 1), 1.5), math.radians(97), math.radians(263)), False)
sketch12.addConstraint(Sketcher.Constraint("Tangent", 4, 2, 5, 2))
sketch12.addConstraint(Sketcher.Constraint("Tangent", 5, 1, 6, 1))
sketch12.addConstraint(Sketcher.Constraint("Tangent", 6, 2, 7, 2))
sketch12.addConstraint(Sketcher.Constraint("Tangent", 7, 1, 4, 1))
sketch12.addConstraint(Sketcher.Constraint("Vertical", 0))
sketch12.addConstraint(Sketcher.Constraint("Horizontal", 1))
sketch12.addConstraint(Sketcher.Constraint("Vertical", 2))
sketch12.addConstraint(Sketcher.Constraint("Horizontal", 3))
sketch12.addConstraint(Sketcher.Constraint("PointOnObject", 2, 2, -1))
sketch12.addConstraint(Sketcher.Constraint("Horizontal", 5, 3, 7, 3))
sketch12.addConstraint(Sketcher.Constraint("Radius", 7, Q("1.5 mm")))
sketch12.addConstraint(Sketcher.Constraint("DistanceX", 1, 2, 1, 1, Q("38 mm")))
sketch12.addConstraint(Sketcher.Constraint("DistanceY", 0, 1, 0, 2, Q("15 mm")))
sketch12.addConstraint(Sketcher.Constraint("DistanceX", -1, 1, 5, 3, Q("4 mm")))
sketch12.addConstraint(Sketcher.Constraint("DistanceX", -1, 1, 0, 2, Q("23 mm")))
sketch12.addConstraint(Sketcher.Constraint("Radius", 5, Q("3.475 mm")))
sketch12.addConstraint(Sketcher.Constraint("DistanceY", -1, 1, 5, 3, Q("7.5 mm")))
sketch12.addConstraint(Sketcher.Constraint("DistanceX", 7, 3, -1, 1, Q("11.985 mm")))
sketch12.setExpression("Constraints[14]", "Params.sketch12_radius")
sketch12.setExpression("Constraints[15]", "Params.sketch12_width")
sketch12.setExpression("Constraints[16]", "Params.sketch12_height")
pad6 = body2.newObject("PartDesign::Pad", "Pad005")
pad6.Profile = sketch12
pad6.setExpression("Length", "Params.pad6_length")
doc.recompute()

boolean = body.newObject("PartDesign::Boolean", "Boolean")
boolean.Type = "Fuse"
boolean.addObjects([body2])

sketch13 = body.newObject("Sketcher::SketchObject", "Sketch012")
sketch13.AttachmentSupport = (doc.getObject("YZ_Plane"), [""])
sketch13.MapMode = "FlatFace"
sketch13.AttachmentOffset = App.Placement(Vector(0, 0, 23), App.Rotation())
add_polygon(sketch13, [(4, 15), (-42, 15), (-42, 0), (4, 0)])
sketch13.addConstraint(Sketcher.Constraint("Horizontal", 0))
sketch13.addConstraint(Sketcher.Constraint("Vertical", 1))
sketch13.addConstraint(Sketcher.Constraint("Horizontal", 2))
sketch13.addConstraint(Sketcher.Constraint("Vertical", 3))
sketch13.addConstraint(Sketcher.Constraint("PointOnObject", 1, 2, -1))
sketch13.addConstraint(Sketcher.Constraint("DistanceX", 0, 2, 0, 1, Q("46 mm")))
sketch13.addConstraint(Sketcher.Constraint("DistanceY", 1, 2, 1, 1, Q("15 mm")))
sketch13.addConstraint(Sketcher.Constraint("DistanceX", 0, 2, -1, 1, Q("42 mm")))
sketch13.setExpression("Constraints[9]", "Params.sketch13_width")
sketch13.setExpression("Constraints[10]", "Params.sketch13_height")
pad7 = body.newObject("PartDesign::Pad", "Pad006")
pad7.Profile = sketch13
pad7.setExpression("Length", "Params.pad7_length")

sketch14 = body.newObject("Sketcher::SketchObject", "Sketch013")
sketch14.AttachmentSupport = (doc.getObject("YZ_Plane"), [""])
sketch14.MapMode = "FlatFace"
sketch14.AttachmentOffset = App.Placement(Vector(0, 0, 23), App.Rotation())
add_polygon(sketch14, [(-8, 0), (-30, 0), (-26, -30), (-12, -30)])
add_polygon(sketch14, [(-24, -6), (-13, -6), (-19, -17)])
sketch14.addConstraint(Sketcher.Constraint("Horizontal", 0))
sketch14.addConstraint(Sketcher.Constraint("Horizontal", 2))
sketch14.addConstraint(Sketcher.Constraint("Horizontal", 4))
sketch14.addConstraint(Sketcher.Constraint("PointOnObject", 0, 2, -1))
sketch14.addConstraint(Sketcher.Constraint("Equal", 1, 3))
sketch14.addConstraint(Sketcher.Constraint("DistanceX", 0, 2, 0, 1, Q("22 mm")))
sketch14.addConstraint(Sketcher.Constraint("DistanceX", 2, 1, 2, 2, Q("14 mm")))
sketch14.addConstraint(Sketcher.Constraint("DistanceX", 0, 2, -1, 1, Q("30 mm")))
sketch14.addConstraint(Sketcher.Constraint("DistanceY", 1, 2, -1, 1, Q("30 mm")))
sketch14.addConstraint(Sketcher.Constraint("DistanceX", 5, 2, -1, 1, Q("19 mm")))
sketch14.addConstraint(Sketcher.Constraint("DistanceX", 4, 1, 4, 2, Q("10.690625 mm")))
sketch14.addConstraint(Sketcher.Constraint("DistanceY", 4, 2, -1, 1, Q("5.86671 mm")))
sketch14.addConstraint(Sketcher.Constraint("Distance", 5, Q("12.348175 mm")))
sketch14.addConstraint(Sketcher.Constraint("Distance", 6, Q("11.722774 mm")))
sketch14.setExpression("Constraints[12]", "Params.sketch14_width")
sketch14.setExpression("Constraints[13]", "Params.sketch14_width2")
pad8 = body.newObject("PartDesign::Pad", "Pad007")
pad8.Profile = sketch14
pad8.setExpression("Length", "Params.pad8_length")

doc.recompute()
